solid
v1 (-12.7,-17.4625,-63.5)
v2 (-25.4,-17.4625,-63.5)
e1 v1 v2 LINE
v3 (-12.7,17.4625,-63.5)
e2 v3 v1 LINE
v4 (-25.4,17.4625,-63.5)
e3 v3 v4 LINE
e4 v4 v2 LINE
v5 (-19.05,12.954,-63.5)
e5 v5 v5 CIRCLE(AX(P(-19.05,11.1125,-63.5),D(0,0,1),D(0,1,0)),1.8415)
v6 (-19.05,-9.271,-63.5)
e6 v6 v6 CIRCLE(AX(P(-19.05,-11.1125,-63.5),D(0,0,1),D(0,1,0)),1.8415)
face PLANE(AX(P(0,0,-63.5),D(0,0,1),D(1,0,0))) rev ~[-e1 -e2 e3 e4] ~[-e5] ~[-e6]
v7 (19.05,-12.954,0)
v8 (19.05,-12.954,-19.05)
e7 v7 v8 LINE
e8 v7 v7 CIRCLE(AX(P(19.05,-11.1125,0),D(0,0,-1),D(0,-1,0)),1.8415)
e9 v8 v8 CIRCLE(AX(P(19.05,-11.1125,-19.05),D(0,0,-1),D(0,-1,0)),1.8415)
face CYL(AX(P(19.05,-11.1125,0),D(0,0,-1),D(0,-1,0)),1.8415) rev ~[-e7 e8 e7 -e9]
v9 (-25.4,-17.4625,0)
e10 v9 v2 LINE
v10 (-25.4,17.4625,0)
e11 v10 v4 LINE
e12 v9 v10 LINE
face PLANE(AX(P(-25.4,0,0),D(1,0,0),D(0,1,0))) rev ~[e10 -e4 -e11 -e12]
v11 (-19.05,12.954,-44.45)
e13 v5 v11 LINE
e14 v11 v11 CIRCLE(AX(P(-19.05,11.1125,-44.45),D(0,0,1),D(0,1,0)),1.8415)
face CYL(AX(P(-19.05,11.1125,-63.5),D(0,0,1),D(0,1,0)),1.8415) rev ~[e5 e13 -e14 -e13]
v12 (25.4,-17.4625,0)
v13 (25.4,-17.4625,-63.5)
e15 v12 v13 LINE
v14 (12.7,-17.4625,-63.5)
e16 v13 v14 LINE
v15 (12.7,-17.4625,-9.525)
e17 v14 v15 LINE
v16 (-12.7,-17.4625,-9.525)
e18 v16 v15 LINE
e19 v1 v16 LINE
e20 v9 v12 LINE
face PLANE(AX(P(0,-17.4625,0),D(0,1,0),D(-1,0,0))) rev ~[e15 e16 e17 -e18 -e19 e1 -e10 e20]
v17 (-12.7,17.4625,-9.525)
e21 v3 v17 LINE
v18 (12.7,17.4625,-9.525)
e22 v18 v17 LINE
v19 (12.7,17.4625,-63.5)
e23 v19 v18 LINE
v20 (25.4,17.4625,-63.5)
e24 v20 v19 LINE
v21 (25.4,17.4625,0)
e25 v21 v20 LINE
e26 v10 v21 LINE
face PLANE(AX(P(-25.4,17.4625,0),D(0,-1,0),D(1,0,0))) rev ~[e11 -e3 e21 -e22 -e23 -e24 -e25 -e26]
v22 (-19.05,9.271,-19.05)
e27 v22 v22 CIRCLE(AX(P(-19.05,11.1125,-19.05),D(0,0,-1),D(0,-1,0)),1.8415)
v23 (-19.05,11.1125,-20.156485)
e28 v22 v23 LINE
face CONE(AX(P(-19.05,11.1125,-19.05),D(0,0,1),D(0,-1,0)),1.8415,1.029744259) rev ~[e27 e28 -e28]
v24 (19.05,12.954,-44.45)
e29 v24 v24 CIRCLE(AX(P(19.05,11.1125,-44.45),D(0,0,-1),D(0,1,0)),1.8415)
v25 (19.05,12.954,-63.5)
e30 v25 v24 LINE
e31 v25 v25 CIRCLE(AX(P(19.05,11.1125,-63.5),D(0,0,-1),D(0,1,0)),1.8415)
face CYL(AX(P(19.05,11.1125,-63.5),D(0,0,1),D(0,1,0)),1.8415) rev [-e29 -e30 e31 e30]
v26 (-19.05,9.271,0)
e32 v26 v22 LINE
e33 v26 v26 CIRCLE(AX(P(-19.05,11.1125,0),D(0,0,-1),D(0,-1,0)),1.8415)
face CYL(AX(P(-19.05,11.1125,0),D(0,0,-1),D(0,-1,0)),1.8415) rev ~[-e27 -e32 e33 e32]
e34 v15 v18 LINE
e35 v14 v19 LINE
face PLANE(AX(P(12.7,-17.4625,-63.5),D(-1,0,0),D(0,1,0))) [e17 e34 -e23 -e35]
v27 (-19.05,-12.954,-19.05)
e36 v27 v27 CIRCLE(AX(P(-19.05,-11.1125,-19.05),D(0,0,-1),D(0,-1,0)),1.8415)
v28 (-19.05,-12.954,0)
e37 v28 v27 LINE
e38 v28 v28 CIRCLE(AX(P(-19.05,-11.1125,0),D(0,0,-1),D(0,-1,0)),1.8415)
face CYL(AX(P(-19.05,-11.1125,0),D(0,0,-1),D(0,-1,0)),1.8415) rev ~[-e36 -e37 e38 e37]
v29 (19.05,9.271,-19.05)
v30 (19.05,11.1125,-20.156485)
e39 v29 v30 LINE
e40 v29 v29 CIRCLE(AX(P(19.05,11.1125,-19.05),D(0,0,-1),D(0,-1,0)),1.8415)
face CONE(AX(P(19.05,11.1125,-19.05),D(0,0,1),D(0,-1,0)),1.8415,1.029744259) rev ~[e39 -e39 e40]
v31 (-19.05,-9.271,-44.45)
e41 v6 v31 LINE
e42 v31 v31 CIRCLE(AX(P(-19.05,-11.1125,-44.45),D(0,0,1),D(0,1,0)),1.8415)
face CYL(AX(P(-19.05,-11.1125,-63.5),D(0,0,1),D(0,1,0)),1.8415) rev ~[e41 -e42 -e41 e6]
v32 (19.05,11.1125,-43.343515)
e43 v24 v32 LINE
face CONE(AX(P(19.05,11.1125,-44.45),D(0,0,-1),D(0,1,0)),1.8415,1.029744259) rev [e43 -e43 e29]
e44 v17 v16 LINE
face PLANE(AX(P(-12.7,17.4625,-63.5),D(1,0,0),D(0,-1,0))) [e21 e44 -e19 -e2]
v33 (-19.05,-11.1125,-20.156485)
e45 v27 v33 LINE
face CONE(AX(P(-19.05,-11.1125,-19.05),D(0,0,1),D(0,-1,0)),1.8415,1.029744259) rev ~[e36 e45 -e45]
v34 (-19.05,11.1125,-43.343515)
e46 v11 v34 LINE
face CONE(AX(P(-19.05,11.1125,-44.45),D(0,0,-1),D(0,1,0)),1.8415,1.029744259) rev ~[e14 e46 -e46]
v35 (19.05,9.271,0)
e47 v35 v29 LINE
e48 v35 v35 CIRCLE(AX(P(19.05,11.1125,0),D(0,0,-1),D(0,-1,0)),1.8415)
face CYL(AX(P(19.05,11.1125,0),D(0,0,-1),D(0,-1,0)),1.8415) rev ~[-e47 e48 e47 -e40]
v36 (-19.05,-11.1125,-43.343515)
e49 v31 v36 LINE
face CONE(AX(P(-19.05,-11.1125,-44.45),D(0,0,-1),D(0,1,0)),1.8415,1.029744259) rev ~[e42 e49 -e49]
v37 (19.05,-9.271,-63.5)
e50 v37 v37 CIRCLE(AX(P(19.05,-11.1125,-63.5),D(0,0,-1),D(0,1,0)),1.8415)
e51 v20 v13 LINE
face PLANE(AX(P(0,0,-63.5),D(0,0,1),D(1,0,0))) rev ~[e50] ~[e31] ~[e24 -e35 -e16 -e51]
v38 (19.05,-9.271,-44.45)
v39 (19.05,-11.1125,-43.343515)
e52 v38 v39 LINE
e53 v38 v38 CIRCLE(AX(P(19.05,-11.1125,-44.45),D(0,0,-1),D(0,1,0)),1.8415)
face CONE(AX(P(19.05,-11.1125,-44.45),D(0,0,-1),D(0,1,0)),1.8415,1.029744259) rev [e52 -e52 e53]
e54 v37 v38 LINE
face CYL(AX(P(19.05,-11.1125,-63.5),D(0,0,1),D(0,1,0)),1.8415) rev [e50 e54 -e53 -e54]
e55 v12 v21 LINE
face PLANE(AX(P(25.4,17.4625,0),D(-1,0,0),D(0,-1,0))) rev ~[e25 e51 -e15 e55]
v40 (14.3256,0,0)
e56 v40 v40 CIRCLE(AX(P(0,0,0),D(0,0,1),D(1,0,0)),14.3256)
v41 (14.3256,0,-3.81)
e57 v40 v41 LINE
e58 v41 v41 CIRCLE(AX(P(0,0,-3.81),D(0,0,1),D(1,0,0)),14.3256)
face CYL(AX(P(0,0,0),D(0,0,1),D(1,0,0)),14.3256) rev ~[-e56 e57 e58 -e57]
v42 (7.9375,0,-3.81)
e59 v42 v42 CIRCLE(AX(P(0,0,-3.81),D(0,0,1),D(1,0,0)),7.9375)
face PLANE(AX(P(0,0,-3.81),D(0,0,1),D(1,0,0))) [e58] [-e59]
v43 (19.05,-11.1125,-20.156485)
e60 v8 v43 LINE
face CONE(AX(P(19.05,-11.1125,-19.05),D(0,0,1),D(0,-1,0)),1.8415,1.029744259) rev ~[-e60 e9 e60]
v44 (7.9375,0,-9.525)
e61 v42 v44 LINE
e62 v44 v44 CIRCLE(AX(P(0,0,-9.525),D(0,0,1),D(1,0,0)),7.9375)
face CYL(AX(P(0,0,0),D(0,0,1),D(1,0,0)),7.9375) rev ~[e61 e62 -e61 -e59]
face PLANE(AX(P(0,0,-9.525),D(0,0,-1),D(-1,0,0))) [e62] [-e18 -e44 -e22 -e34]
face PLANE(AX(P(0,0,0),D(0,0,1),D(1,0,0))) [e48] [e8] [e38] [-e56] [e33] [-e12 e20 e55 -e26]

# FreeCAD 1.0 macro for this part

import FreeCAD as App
import Part
import Sketcher

V = App.Vector
Q = App.Units.Quantity


def add_polygon(sketch, points):
    """Adds a closed chain of lines whose ends are joined by coincident constraints."""
    first, n = sketch.GeometryCount, len(points)
    for a, b in zip(points, points[1:] + points[:1]):
        sketch.addGeometry(Part.LineSegment(App.Vector(*a, 0), App.Vector(*b, 0)), False)
    for i in range(n):
        sketch.addConstraint(Sketcher.Constraint("Coincident", first + i, 2, first + (i + 1) % n, 1))

doc = App.newDocument("Part")
params = doc.addObject("Spreadsheet::Sheet", "Params")
for row, (alias, value) in enumerate([
    ("sketch1_width", "2 in"),
    ("sketch1_diameter", "0.625 in"),
    ("sketch1_height", "1.375 in"),
    ("pad1_length", "2.5 in"),
    ("sketch2_width", "1 in"),
    ("sketch2_diameter", "0.625 in"),
    ("sketch2_height", "1.375 in"),
    ("pocket1_length", "2.125 in"),
    ("sketch3_diameter", "1.128 in"),
    ("sketch3_diameter2", "0.625 in"),
    ("pocket2_length", "0.15 in"),
    ("sketch4_diameter", "0.145 in"),
    ("hole_diameter", "0.145 in"),
    ("hole_depth", "0.75 in"),
    ("sketch5_diameter", "0.145 in"),
    ("hole2_diameter", "0.145 in"),
    ("hole2_depth", "0.75 in"),
], start=1):
    params.set(f"A{row}", alias)
    params.set(f"B{row}", "=" + value)
    params.setAlias(f"B{row}", alias)

body = doc.addObject("PartDesign::Body", "Body")

sketch1 = body.newObject("Sketcher::SketchObject", "Sketch")
sketch1.AttachmentSupport = (doc.getObject("XY_Plane"), [""])
sketch1.MapMode = "FlatFace"
add_polygon(sketch1, [(-25, 17), (-25, -17), (25, -17), (25, 17)])
sketch1.addGeometry(Part.Circle(V(0, 0, 0), V(0, 0, 1), 8), False)
sketch1.addConstraint(Sketcher.Constraint("Vertical", 0))
sketch1.addConstraint(Sketcher.Constraint("Horizontal", 1))
sketch1.addConstraint(Sketcher.Constraint("Vertical", 2))
sketch1.addConstraint(Sketcher.Constraint("Horizontal", 3))
sketch1.addConstraint(Sketcher.Constraint("Coincident", 4, 3, -1, 1))
sketch1.addConstraint(Sketcher.Constraint("Symmetric", 0, 2, 2, 2, -1, 1))
sketch1.addConstraint(Sketcher.Constraint("DistanceX", 1, 1, 1, 2, Q("2 in")))
sketch1.addConstraint(Sketcher.Constraint("Diameter", 4, Q("0.625 in")))
sketch1.addConstraint(Sketcher.Constraint("DistanceY", 0, 2, 0, 1, Q("1.375 in")))
sketch1.setExpression("Constraints[10]", "Params.sketch1_width")
sketch1.setExpression("Constraints[11]", "Params.sketch1_diameter")
sketch1.setExpression("Constraints[12]", "Params.sketch1_height")
pad1 = body.newObject("PartDesign::Pad", "Pad")
pad1.Profile = sketch1
pad1.setExpression("Length", "Params.pad1_length")
pad1.Reversed = True

sketch2 = body.newObject("Sketcher::SketchObject", "Sketch001")
sketch2.AttachmentSupport = (doc.getObject("XY_Plane"), [""])
sketch2.MapMode = "FlatFace"
sketch2.AttachmentOffset = App.Placement(V(0, 0, -2.5 * 25.4), App.Rotation())
add_polygon(sketch2, [(-13, 17), (13, 17), (13, -17), (-13, -17)])
sketch2.addGeometry(Part.Circle(V(0, 0, 0), V(0, 0, 1), 8), False)
sketch2.addConstraint(Sketcher.Constraint("Horizontal", 0))
sketch2.addConstraint(Sketcher.Constraint("Vertical", 1))
sketch2.addConstraint(Sketcher.Constraint("Horizontal", 2))
sketch2.addConstraint(Sketcher.Constraint("Vertical", 3))
sketch2.addConstraint(Sketcher.Constraint("Coincident", 4, 3, -1, 1))
sketch2.addConstraint(Sketcher.Constraint("Symmetric", 0, 2, 2, 2, -1, 1))
sketch2.addConstraint(Sketcher.Constraint("DistanceX", 0, 1, 0, 2, Q("1 in")))
sketch2.addConstraint(Sketcher.Constraint("Diameter", 4, Q("0.625 in")))
sketch2.addConstraint(Sketcher.Constraint("DistanceY", 1, 2, 1, 1, Q("1.375 in")))
sketch2.setExpression("Constraints[10]", "Params.sketch2_width")
sketch2.setExpression("Constraints[11]", "Params.sketch2_diameter")
sketch2.setExpression("Constraints[12]", "Params.sketch2_height")
pocket1 = body.newObject("PartDesign::Pocket", "Pocket")
pocket1.Profile = sketch2
pocket1.setExpression("Length", "Params.pocket1_length")
pocket1.Reversed = True

sketch3 = body.newObject("Sketcher::SketchObject", "Sketch002")
sketch3.AttachmentSupport = (doc.getObject("XY_Plane"), [""])
sketch3.MapMode = "FlatFace"
sketch3.addGeometry(Part.Circle(V(0, 0, 0), V(0, 0, 1), 14), False)
sketch3.addGeometry(Part.Circle(V(0, 0, 0), V(0, 0, 1), 8), False)
sketch3.addConstraint(Sketcher.Constraint("Coincident", 0, 3, -1, 1))
sketch3.addConstraint(Sketcher.Constraint("Coincident", 1, 3, -1, 1))
sketch3.addConstraint(Sketcher.Constraint("Diameter", 0, Q("1.128 in")))
sketch3.addConstraint(Sketcher.Constraint("Diameter", 1, Q("0.625 in")))
sketch3.setExpression("Constraints[2]", "Params.sketch3_diameter")
sketch3.setExpression("Constraints[3]", "Params.sketch3_diameter2")
pocket2 = body.newObject("PartDesign::Pocket", "Pocket001")
pocket2.Profile = sketch3
pocket2.setExpression("Length", "Params.pocket2_length")

sketch4 = body.newObject("Sketcher::SketchObject", "Sketch003")
sketch4.AttachmentSupport = (doc.getObject("XY_Plane"), [""])
sketch4.MapMode = "FlatFace"
sketch4.addGeometry(Part.Circle(V(-19.1, 11.1, 0), V(0, 0, 1), 1.8), False)
sketch4.addGeometry(Part.Circle(V(19.1, 11.1, 0), V(0, 0, 1), 1.8), False)
sketch4.addGeometry(Part.Circle(V(-19.1, -11.1, 0), V(0, 0, 1), 1.8), False)
sketch4.addGeometry(Part.Circle(V(19.1, -11.1, 0), V(0, 0, 1), 1.8), False)
sketch4.addConstraint(Sketcher.Constraint("Equal", 0, 1))
sketch4.addConstraint(Sketcher.Constraint("Equal", 1, 2))
sketch4.addConstraint(Sketcher.Constraint("Equal", 2, 3))
sketch4.addConstraint(Sketcher.Constraint("Symmetric", 1, 3, 2, 3, -1, 1))
sketch4.addConstraint(Sketcher.Constraint("Symmetric", 0, 3, 3, 3, -1, 1))
sketch4.addConstraint(Sketcher.Constraint("Symmetric", 0, 3, 1, 3, -2))
sketch4.addConstraint(Sketcher.Constraint("Diameter", 0, Q("0.145 in")))
sketch4.addConstraint(Sketcher.Constraint("DistanceX", 0, 3, 1, 3, Q("1.5 in")))
sketch4.addConstraint(Sketcher.Constraint("DistanceY", -1, 1, 0, 3, Q("0.4375 in")))
sketch4.setExpression("Constraints[6]", "Params.sketch4_diameter")
doc.recompute()
hole = body.newObject("PartDesign::Hole", "Hole")
hole.Profile = sketch4
hole.ThreadType = "None"
hole.setExpression("Diameter", "Params.hole_diameter")
hole.DepthType = "Dimension"
hole.setExpression("Depth", "Params.hole_depth")
hole.DrillPoint = "Angled"
hole.DrillPointAngle = 118

sketch5 = body.newObject("Sketcher::SketchObject", "Sketch004")
sketch5.AttachmentSupport = (doc.getObject("XY_Plane"), [""])
sketch5.MapMode = "FlatFace"
sketch5.AttachmentOffset = App.Placement(V(0, 0, -2.5 * 25.4), App.Rotation())
sketch5.addGeometry(Part.Circle(V(-19.1, 11.1, 0), V(0, 0, 1), 1.8), False)
sketch5.addGeometry(Part.Circle(V(-19.1, -11.1, 0), V(0, 0, 1), 1.8), False)
sketch5.addConstraint(Sketcher.Constraint("Equal", 0, 1))
sketch5.addConstraint(Sketcher.Constraint("Symmetric", 0, 3, 1, 3, -1))
sketch5.addConstraint(Sketcher.Constraint("Diameter", 0, Q("0.145 in")))
sketch5.addConstraint(Sketcher.Constraint("DistanceX", 0, 3, -1, 1, Q("0.75 in")))
sketch5.addConstraint(Sketcher.Constraint("DistanceY", -1, 1, 0, 3, Q("0.4375 in")))
sketch5.setExpression("Constraints[2]", "Params.sketch5_diameter")
doc.recompute()
hole2 = body.newObject("PartDesign::Hole", "Hole001")
hole2.Profile = sketch5
hole2.ThreadType = "None"
hole2.setExpression("Diameter", "Params.hole2_diameter")
hole2.DepthType = "Dimension"
hole2.setExpression("Depth", "Params.hole2_depth")
hole2.DrillPoint = "Angled"
hole2.DrillPointAngle = 118
hole2.Reversed = True
doc.recompute()

mirrored = body.newObject("PartDesign::Mirrored", "Mirrored")
mirrored.Originals = [hole2]
mirrored.MirrorPlane = (doc.getObject("YZ_Plane"), [""])
body.Tip = mirrored

doc.recompute()
